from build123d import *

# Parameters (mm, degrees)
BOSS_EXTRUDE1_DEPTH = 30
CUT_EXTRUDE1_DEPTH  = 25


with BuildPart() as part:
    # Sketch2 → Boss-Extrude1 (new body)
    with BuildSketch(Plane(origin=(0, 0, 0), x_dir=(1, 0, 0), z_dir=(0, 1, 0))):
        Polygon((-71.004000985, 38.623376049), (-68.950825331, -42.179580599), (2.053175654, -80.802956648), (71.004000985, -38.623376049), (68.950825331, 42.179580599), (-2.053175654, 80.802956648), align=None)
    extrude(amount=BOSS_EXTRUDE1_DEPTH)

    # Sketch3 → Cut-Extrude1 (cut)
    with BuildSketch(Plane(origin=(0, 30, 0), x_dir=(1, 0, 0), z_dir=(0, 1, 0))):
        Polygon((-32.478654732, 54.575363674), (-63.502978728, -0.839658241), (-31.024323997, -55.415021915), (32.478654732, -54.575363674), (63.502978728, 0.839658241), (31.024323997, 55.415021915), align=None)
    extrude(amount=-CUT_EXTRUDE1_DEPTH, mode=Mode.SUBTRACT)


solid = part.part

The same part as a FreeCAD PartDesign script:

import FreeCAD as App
import Part
import Sketcher


def add_polygon(sketch, points):
    """Adds a closed chain of lines whose ends are joined by coincident constraints."""
    first, n = sketch.GeometryCount, len(points)
    for a, b in zip(points, points[1:] + points[:1]):
        sketch.addGeometry(Part.LineSegment(App.Vector(*a, 0), App.Vector(*b, 0)), False)
    for i in range(n):
        sketch.addConstraint(Sketcher.Constraint("Coincident", first + i, 2, first + (i + 1) % n, 1))

doc = App.newDocument("Part")
params = doc.addObject("Spreadsheet::Sheet", "Params")
for row, (alias, value) in enumerate([
    ("pad1_length", "30 mm"),
    ("pocket1_length", "25 mm"),
], start=1):
    params.set(f"A{row}", alias)
    params.set(f"B{row}", "=" + value)
    params.setAlias(f"B{row}", alias)

body = doc.addObject("PartDesign::Body", "Body")

sketch1 = body.newObject("Sketcher::SketchObject", "Sketch")
sketch1.AttachmentSupport = (doc.getObject("XZ_Plane"), [""])
sketch1.MapMode = "FlatFace"
add_polygon(sketch1, [(-71.004001, -38.623376), (-68.950825, 42.179581), (2.053176, 80.802957), (71.004001, 38.623376), (68.950825, -42.179581), (-2.053176, -80.802957)])
sketch1.addConstraint(Sketcher.Constraint("Symmetric", 0, 2, 3, 2, -1, 1))
sketch1.addConstraint(Sketcher.Constraint("Symmetric", 1, 2, 4, 2, -1, 1))
sketch1.addConstraint(Sketcher.Constraint("Symmetric", 2, 2, 5, 2, -1, 1))
sketch1.addConstraint(Sketcher.Constraint("Equal", 0, 1))
sketch1.addConstraint(Sketcher.Constraint("Equal", 1, 2))
sketch1.addConstraint(Sketcher.Constraint("DistanceX", -1, 1, 2, 2, 71.004001))
sketch1.addConstraint(Sketcher.Constraint("DistanceX", 0, 2, 1, 2, 71.004001))
sketch1.addConstraint(Sketcher.Constraint("DistanceY", -1, 1, 0, 2, 42.179581))
sketch1.addConstraint(Sketcher.Constraint("DistanceY", 2, 2, 1, 2, 42.179581))
pad1 = body.newObject("PartDesign::Pad", "Pad")
pad1.Profile = sketch1
pad1.setExpression("Length", "Params.pad1_length")
pad1.Reversed = True

sketch2 = body.newObject("Sketcher::SketchObject", "Sketch001")
sketch2.AttachmentSupport = (doc.getObject("XZ_Plane"), [""])
sketch2.MapMode = "FlatFace"
sketch2.AttachmentOffset = App.Placement(App.Vector(0, 0, -30), App.Rotation())
add_polygon(sketch2, [(-32.478655, -54.575364), (-63.502979, 0.839658), (-31.024324, 55.415022), (32.478655, 54.575364), (63.502979, -0.839658), (31.024324, -55.415022)])
sketch2.addConstraint(Sketcher.Constraint("Symmetric", 0, 2, 3, 2, -1, 1))
sketch2.addConstraint(Sketcher.Constraint("Symmetric", 1, 2, 4, 2, -1, 1))
sketch2.addConstraint(Sketcher.Constraint("Symmetric", 2, 2, 5, 2, -1, 1))
sketch2.addConstraint(Sketcher.Constraint("Equal", 0, 1))
sketch2.addConstraint(Sketcher.Constraint("Equal", 1, 2))
sketch2.addConstraint(Sketcher.Constraint("Distance", 0, 63.50853))
sketch2.addConstraint(Sketcher.Constraint("DistanceX", 0, 2, -1, 1, 63.502979))
sketch2.addConstraint(Sketcher.Constraint("DistanceY", -1, 1, 0, 2, 0.839658))
sketch2.addConstraint(Sketcher.Constraint("DistanceY", -1, 1, 1, 2, 55.415022))
pocket1 = body.newObject("PartDesign::Pocket", "Pocket")
pocket1.Profile = sketch2
pocket1.setExpression("Length", "Params.pocket1_length")
pocket1.Reversed = True

doc.recompute()
